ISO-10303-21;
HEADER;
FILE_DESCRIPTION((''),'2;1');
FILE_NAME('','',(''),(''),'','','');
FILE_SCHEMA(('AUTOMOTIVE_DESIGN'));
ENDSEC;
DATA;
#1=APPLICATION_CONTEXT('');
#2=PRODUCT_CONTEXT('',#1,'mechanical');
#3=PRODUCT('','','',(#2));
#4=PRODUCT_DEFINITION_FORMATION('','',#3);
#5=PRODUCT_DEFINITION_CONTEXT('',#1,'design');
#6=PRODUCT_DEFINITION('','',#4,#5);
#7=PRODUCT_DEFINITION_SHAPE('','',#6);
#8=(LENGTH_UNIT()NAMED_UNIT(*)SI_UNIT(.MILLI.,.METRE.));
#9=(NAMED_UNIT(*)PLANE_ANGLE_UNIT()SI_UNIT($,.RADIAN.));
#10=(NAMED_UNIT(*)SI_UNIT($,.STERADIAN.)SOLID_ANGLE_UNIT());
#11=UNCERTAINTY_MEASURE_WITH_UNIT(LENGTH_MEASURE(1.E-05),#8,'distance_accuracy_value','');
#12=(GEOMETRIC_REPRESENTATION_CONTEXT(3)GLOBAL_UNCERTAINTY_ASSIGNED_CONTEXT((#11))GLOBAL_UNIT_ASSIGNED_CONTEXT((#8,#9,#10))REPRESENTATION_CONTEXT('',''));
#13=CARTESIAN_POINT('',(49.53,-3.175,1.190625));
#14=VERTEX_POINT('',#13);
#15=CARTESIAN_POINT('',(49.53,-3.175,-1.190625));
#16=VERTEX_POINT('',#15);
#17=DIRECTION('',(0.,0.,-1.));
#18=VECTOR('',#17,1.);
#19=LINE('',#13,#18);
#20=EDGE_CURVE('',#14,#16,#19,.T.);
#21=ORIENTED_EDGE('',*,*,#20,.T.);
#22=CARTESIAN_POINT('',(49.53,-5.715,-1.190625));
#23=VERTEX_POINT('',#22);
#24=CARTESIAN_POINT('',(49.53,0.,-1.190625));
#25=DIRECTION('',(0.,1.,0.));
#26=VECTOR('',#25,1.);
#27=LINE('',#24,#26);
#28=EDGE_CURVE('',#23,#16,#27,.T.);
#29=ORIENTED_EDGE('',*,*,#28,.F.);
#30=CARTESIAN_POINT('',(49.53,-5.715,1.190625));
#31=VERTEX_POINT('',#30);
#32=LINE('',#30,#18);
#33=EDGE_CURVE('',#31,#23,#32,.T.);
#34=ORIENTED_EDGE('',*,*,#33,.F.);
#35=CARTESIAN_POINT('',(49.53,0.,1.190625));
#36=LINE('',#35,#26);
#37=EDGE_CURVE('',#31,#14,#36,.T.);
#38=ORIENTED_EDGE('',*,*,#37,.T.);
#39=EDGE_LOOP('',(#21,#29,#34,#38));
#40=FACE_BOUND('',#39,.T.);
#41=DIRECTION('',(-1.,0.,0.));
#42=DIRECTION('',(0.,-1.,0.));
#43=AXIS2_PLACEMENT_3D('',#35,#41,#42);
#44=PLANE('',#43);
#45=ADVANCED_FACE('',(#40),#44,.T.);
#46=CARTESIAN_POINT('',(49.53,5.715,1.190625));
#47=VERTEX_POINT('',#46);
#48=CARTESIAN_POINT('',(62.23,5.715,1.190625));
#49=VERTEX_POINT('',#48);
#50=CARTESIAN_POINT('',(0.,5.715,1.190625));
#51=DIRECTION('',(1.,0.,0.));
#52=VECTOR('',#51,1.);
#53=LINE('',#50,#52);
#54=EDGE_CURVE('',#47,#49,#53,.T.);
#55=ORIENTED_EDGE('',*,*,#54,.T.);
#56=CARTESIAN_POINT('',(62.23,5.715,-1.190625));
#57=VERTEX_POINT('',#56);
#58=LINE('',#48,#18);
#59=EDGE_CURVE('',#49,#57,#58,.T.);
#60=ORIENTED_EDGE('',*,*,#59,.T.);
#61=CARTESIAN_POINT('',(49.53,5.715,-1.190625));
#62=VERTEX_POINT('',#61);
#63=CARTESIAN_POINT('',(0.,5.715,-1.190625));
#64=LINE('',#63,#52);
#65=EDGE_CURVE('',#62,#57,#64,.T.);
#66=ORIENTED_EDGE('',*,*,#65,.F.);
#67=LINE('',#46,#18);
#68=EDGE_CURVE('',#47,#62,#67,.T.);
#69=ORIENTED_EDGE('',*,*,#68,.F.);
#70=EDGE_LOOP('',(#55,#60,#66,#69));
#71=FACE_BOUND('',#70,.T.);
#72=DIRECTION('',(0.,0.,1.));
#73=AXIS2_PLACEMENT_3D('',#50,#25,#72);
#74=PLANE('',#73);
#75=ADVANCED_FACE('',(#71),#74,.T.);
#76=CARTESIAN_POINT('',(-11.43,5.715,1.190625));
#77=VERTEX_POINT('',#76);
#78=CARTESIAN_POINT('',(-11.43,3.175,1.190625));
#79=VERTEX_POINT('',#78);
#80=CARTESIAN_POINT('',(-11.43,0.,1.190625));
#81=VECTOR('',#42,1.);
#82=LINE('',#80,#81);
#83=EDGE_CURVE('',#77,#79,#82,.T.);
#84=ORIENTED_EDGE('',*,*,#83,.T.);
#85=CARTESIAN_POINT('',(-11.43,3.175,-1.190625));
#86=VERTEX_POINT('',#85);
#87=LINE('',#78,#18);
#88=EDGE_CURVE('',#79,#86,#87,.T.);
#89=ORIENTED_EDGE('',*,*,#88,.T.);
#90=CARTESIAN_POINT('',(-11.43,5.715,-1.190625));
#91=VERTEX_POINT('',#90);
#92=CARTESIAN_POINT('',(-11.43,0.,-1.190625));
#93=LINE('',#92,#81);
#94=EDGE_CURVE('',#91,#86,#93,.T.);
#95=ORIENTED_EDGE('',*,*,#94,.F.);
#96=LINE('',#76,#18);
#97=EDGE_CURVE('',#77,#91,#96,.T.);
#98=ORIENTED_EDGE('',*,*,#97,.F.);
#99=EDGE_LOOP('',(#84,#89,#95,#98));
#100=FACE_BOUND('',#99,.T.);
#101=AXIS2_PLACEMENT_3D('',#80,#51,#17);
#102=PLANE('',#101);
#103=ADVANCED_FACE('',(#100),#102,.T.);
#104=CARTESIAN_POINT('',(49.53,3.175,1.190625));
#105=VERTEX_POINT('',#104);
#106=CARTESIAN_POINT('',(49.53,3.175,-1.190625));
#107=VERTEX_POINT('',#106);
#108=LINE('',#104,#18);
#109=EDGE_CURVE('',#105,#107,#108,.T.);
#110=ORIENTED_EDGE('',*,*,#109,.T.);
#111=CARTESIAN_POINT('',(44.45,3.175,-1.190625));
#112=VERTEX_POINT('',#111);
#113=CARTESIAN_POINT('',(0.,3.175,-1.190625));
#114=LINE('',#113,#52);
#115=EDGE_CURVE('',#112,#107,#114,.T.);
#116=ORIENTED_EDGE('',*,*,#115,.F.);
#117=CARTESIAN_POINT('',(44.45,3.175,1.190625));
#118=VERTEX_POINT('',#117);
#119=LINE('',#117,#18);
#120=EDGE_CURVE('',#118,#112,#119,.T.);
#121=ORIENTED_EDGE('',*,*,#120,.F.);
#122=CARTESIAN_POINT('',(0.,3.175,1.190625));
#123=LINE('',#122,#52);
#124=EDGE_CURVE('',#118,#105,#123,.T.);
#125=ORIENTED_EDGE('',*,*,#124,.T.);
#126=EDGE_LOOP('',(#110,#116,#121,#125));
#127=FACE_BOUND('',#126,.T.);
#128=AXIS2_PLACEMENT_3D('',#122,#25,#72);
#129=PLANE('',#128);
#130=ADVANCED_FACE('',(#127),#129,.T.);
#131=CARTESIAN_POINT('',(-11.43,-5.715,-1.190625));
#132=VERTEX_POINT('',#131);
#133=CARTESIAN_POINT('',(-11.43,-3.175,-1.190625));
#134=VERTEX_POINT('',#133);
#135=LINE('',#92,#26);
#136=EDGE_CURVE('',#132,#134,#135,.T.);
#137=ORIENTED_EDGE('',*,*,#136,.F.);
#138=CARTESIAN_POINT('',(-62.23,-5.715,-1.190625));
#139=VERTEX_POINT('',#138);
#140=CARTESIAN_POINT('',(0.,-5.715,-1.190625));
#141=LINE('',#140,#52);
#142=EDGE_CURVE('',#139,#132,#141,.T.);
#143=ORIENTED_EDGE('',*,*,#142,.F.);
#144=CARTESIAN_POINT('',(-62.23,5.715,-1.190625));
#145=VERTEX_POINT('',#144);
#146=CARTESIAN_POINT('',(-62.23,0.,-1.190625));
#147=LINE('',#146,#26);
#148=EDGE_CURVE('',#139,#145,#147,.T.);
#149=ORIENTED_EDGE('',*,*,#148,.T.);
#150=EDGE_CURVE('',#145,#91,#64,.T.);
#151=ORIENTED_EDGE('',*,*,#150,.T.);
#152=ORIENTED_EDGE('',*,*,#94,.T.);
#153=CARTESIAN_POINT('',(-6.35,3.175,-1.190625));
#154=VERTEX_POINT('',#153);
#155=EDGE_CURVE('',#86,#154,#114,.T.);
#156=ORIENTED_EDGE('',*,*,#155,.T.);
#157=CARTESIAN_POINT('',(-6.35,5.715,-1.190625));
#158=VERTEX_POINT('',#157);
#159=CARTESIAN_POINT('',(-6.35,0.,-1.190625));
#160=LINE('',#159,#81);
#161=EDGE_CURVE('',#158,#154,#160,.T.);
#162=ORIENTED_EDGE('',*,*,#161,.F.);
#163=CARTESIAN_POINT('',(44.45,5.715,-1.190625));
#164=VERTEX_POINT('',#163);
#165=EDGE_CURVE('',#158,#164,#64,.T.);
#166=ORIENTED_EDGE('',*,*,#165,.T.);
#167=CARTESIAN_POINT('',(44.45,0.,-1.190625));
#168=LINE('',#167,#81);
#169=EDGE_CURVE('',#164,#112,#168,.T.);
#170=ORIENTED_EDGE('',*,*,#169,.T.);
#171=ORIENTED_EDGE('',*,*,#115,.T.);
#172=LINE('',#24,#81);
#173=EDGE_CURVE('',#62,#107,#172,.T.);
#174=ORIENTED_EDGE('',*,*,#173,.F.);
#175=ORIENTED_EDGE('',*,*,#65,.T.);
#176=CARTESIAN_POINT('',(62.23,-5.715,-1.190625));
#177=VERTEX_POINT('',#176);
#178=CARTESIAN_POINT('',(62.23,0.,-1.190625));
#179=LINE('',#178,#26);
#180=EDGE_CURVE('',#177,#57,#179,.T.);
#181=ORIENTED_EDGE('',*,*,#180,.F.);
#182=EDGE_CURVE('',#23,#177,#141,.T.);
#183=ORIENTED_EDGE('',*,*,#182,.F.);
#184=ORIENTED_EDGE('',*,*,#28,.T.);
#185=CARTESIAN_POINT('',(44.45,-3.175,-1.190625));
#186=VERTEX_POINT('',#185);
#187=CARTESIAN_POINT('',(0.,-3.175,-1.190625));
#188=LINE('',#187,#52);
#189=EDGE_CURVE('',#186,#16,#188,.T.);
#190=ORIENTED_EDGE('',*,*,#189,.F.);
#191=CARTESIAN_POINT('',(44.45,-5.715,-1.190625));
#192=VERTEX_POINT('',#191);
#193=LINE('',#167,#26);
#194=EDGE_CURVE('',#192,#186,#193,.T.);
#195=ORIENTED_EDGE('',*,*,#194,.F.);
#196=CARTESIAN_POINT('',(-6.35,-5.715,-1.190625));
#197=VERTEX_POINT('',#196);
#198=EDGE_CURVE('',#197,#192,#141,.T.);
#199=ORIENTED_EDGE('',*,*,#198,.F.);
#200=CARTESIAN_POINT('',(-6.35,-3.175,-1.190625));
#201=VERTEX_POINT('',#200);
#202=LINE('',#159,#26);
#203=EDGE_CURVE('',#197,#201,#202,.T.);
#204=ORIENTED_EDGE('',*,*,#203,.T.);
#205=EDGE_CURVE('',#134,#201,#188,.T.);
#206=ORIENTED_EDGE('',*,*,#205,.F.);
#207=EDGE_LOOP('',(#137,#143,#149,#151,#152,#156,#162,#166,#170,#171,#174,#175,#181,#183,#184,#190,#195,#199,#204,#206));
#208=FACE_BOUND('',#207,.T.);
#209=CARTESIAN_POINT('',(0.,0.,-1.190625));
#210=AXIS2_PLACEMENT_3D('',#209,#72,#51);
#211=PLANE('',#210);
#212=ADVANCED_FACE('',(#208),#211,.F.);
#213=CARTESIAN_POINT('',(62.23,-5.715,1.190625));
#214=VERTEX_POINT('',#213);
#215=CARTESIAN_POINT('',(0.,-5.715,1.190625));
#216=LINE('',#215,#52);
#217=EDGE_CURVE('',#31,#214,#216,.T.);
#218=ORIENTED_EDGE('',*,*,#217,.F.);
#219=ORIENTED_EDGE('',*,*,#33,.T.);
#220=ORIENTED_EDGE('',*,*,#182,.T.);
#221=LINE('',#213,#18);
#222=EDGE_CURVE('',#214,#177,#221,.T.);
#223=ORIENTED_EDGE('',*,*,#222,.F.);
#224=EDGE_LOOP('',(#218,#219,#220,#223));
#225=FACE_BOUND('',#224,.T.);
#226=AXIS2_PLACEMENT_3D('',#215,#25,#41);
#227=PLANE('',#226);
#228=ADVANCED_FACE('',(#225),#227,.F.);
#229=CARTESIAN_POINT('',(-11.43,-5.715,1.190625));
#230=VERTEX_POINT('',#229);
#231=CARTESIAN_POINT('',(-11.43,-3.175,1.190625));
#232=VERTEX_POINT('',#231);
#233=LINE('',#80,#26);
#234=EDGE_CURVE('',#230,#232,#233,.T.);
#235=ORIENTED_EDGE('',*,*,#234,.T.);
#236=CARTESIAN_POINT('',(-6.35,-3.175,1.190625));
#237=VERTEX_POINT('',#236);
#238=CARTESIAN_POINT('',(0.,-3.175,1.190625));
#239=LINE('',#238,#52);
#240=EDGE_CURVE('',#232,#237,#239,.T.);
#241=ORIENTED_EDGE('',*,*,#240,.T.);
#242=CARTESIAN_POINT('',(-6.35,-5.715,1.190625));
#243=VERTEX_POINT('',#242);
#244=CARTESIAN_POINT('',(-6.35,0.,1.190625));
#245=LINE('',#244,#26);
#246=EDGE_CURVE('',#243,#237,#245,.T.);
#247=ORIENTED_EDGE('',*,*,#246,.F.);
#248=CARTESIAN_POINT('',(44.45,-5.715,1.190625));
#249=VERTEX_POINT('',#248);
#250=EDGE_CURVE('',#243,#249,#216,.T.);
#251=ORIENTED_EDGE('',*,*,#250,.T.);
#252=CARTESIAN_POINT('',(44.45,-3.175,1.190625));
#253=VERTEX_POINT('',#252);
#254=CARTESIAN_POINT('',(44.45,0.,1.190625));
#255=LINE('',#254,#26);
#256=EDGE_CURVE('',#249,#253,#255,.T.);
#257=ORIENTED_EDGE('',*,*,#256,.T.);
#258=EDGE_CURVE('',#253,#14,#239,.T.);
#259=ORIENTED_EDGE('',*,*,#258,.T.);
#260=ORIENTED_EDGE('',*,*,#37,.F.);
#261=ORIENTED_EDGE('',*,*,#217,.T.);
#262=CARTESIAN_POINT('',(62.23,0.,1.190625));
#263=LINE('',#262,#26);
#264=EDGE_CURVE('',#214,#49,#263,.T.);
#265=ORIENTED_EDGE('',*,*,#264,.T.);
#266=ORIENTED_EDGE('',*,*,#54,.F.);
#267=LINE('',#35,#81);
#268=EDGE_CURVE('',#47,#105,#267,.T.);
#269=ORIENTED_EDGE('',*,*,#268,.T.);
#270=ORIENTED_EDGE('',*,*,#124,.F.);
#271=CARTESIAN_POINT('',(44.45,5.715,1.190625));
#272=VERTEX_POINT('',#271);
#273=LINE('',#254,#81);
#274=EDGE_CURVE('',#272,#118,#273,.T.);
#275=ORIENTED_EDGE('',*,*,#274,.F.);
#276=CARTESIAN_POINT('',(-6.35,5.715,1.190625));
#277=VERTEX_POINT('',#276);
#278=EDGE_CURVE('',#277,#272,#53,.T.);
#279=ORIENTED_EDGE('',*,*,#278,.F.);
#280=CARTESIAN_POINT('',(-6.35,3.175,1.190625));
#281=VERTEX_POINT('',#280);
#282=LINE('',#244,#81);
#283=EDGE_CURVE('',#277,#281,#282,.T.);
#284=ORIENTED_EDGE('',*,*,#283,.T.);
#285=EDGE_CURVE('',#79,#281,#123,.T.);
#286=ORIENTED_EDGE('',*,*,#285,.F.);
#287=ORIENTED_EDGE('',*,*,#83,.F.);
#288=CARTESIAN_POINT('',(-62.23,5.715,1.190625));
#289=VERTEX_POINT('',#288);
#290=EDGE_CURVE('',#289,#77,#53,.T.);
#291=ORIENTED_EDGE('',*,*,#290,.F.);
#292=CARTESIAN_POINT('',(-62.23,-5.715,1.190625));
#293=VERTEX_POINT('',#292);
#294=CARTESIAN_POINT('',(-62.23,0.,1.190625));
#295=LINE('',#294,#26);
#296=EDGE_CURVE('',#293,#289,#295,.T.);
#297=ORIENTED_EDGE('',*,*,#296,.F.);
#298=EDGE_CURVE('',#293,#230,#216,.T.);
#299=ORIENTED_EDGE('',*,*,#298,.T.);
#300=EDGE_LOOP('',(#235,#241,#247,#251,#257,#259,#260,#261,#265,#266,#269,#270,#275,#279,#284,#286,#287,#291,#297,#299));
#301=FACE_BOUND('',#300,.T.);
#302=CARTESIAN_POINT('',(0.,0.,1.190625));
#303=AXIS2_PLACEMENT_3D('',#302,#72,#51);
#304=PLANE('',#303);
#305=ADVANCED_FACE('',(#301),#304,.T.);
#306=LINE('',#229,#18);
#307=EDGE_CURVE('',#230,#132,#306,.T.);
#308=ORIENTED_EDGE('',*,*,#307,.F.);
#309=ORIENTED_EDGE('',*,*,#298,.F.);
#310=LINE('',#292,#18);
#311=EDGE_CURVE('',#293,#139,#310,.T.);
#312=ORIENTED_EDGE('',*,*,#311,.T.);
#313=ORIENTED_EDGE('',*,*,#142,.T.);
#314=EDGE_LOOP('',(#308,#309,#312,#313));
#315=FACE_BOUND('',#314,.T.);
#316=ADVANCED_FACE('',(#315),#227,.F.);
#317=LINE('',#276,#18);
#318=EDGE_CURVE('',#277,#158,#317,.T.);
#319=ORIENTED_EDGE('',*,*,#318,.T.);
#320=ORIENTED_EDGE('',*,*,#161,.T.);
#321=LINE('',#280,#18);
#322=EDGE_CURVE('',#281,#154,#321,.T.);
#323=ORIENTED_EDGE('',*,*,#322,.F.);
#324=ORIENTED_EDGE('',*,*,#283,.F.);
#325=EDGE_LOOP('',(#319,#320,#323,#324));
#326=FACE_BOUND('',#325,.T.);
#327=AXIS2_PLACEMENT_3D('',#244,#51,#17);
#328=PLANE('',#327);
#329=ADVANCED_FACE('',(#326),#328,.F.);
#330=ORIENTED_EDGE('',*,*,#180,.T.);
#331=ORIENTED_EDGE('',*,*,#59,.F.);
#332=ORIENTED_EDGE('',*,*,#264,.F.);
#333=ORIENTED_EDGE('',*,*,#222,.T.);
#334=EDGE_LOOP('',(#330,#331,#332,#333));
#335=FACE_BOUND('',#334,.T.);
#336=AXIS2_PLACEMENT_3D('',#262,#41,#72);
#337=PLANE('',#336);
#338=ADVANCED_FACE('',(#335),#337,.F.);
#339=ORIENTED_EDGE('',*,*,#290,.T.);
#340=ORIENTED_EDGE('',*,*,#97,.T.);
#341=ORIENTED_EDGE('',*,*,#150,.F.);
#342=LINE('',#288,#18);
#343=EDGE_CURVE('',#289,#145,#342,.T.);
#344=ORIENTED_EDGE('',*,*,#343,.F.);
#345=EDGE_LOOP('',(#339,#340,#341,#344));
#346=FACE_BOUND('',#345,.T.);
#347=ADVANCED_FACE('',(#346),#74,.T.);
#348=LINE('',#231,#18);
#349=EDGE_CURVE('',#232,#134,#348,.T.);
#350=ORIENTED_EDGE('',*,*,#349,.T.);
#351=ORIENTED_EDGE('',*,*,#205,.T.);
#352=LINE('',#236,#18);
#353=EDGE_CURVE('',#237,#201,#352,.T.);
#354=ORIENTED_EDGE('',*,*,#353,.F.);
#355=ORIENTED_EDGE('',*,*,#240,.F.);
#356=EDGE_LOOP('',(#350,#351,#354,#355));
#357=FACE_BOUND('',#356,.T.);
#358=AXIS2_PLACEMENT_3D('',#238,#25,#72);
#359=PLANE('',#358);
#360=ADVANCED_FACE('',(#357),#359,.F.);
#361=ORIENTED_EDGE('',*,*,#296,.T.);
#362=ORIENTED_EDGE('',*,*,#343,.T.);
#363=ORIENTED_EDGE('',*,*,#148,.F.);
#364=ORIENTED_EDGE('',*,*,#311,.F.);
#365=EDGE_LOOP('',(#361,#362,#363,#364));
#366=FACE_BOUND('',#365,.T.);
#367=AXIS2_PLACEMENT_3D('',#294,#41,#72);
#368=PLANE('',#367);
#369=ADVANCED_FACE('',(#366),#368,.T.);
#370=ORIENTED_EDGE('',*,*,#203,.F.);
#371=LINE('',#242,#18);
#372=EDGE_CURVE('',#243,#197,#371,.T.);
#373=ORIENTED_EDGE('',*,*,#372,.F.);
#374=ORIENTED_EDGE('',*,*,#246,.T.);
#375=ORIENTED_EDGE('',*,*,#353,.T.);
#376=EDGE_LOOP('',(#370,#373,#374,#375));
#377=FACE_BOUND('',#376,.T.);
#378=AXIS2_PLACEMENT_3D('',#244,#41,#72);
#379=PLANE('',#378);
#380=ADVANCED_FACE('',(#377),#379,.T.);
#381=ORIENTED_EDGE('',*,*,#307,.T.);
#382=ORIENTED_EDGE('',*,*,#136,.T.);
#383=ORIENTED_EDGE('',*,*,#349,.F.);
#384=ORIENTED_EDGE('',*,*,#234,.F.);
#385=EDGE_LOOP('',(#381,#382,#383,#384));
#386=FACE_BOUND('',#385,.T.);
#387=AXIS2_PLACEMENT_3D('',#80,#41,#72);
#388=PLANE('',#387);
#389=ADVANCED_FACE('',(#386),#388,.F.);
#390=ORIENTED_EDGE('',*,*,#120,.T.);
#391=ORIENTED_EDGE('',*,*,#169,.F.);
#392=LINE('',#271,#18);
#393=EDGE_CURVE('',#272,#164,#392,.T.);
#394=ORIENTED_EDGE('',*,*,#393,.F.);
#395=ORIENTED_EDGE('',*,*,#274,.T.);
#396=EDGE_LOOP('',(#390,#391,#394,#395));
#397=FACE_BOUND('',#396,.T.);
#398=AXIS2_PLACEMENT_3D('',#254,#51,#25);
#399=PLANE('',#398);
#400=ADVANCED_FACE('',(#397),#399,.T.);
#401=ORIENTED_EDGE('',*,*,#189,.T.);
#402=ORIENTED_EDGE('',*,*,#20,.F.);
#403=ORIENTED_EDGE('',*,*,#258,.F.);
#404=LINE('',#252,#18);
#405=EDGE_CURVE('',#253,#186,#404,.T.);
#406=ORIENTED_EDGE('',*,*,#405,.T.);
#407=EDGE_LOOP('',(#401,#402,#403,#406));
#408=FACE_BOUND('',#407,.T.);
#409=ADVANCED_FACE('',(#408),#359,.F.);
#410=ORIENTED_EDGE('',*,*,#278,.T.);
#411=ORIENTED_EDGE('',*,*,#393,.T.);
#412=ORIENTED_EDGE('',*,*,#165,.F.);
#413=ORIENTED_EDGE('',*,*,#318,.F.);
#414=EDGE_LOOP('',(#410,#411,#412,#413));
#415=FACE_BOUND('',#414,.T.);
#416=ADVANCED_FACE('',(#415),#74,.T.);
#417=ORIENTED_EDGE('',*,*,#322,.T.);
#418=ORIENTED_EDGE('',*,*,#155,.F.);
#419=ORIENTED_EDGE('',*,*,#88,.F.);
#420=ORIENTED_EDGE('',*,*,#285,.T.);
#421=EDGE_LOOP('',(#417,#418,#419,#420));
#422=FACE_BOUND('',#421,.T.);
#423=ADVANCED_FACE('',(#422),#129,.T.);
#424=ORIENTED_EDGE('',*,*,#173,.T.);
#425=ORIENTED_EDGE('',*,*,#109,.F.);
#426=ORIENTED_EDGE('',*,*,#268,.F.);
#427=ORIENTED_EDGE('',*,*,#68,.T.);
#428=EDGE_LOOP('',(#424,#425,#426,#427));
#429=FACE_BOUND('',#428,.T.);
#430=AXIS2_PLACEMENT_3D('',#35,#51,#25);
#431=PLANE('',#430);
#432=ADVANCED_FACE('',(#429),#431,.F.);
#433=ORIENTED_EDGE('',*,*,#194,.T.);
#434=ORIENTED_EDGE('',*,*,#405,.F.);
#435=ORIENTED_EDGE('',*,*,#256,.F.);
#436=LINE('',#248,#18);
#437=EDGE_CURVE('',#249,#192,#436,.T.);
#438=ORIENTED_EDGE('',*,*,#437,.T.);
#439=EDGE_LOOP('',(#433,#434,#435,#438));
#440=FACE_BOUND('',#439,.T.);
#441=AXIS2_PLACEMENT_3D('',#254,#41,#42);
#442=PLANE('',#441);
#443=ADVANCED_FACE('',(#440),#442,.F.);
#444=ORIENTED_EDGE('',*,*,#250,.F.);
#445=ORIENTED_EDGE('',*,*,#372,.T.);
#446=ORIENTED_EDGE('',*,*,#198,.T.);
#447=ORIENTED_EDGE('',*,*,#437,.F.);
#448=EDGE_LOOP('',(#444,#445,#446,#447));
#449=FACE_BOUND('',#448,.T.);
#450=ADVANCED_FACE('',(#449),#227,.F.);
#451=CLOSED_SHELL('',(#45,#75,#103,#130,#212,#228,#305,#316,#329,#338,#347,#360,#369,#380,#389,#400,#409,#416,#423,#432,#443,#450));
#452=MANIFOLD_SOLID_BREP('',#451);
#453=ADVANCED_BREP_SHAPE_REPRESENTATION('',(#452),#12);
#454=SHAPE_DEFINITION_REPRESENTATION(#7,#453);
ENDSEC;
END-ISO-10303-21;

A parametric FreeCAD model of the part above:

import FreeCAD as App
import Part
import Sketcher

V = App.Vector
Q = App.Units.Quantity


def add_polygon(sketch, points):
    """Adds a closed chain of lines whose ends are joined by coincident constraints."""
    first, n = sketch.GeometryCount, len(points)
    for a, b in zip(points, points[1:] + points[:1]):
        sketch.addGeometry(Part.LineSegment(App.Vector(*a, 0), App.Vector(*b, 0)), False)
    for i in range(n):
        sketch.addConstraint(Sketcher.Constraint("Coincident", first + i, 2, first + (i + 1) % n, 1))

doc = App.newDocument("Part")
body = doc.addObject("PartDesign::Body", "Body")

sketch1 = body.newObject("Sketcher::SketchObject", "Sketch")
sketch1.AttachmentSupport = (doc.getObject("XY_Plane"), [""])
sketch1.MapMode = "FlatFace"
add_polygon(sketch1, [(-62.23, 5.715), (-62.23, -5.715), (-11.43, -5.715), (-11.43, -3.175), (-6.35, -3.175), (-6.35, -5.715), (44.45, -5.715), (44.45, -3.175), (49.53, -3.175), (49.53, -5.715), (62.23, -5.715), (62.23, 5.715), (49.53, 5.715), (49.53, 3.175), (44.45, 3.175), (44.45, 5.715), (-6.35, 5.715), (-6.35, 3.175), (-11.43, 3.175), (-11.43, 5.715)])
sketch1.addConstraint([
    Sketcher.Constraint("Vertical", 0),
    Sketcher.Constraint("Horizontal", 1),
    Sketcher.Constraint("Vertical", 2),
    Sketcher.Constraint("Horizontal", 3),
    Sketcher.Constraint("Vertical", 4),
    Sketcher.Constraint("Horizontal", 5),
    Sketcher.Constraint("Vertical", 6),
    Sketcher.Constraint("Horizontal", 7),
    Sketcher.Constraint("Vertical", 8),
    Sketcher.Constraint("Horizontal", 9),
    Sketcher.Constraint("Vertical", 10),
    Sketcher.Constraint("Horizontal", 11),
    Sketcher.Constraint("Vertical", 12),
    Sketcher.Constraint("Horizontal", 13),
    Sketcher.Constraint("Vertical", 14),
    Sketcher.Constraint("Horizontal", 15),
    Sketcher.Constraint("Vertical", 16),
    Sketcher.Constraint("Horizontal", 17),
    Sketcher.Constraint("Vertical", 18),
    Sketcher.Constraint("Horizontal", 19),
    Sketcher.Constraint("Symmetric", 0, 2, 10, 2, -1, 1),
    Sketcher.Constraint("Symmetric", 8, 2, 11, 2, -1),
    Sketcher.Constraint("Symmetric", 6, 2, 13, 2, -1),
    Sketcher.Constraint("Symmetric", 4, 2, 15, 2, -1),
    Sketcher.Constraint("Symmetric", 2, 2, 17, 2, -1),
    Sketcher.Constraint("Horizontal", 1, 2, 4, 2),
    Sketcher.Constraint("Horizontal", 3, 2, 6, 2),
    Sketcher.Constraint("Horizontal", 15, 2, 18, 2),
    Sketcher.Constraint("Equal", 1, 5),
    Sketcher.Constraint("Equal", 3, 7),
    Sketcher.Constraint("DistanceX", 1, 1, 1, 2, Q("2 in")),
    Sketcher.Constraint("DistanceX", 3, 1, 3, 2, Q("0.2 in")),
    Sketcher.Constraint("DistanceX", 9, 1, 9, 2, Q("0.5 in")),
    Sketcher.Constraint("DistanceY", 2, 1, 2, 2, Q("0.1 in")),
    Sketcher.Constraint("DistanceY", 0, 2, 0, 1, Q("0.45 in")),
])
pad1 = body.newObject("PartDesign::Pad", "Pad")
pad1.Profile = sketch1
pad1.Length = Q("0.09375 in")
pad1.Midplane = True

doc.recompute()
